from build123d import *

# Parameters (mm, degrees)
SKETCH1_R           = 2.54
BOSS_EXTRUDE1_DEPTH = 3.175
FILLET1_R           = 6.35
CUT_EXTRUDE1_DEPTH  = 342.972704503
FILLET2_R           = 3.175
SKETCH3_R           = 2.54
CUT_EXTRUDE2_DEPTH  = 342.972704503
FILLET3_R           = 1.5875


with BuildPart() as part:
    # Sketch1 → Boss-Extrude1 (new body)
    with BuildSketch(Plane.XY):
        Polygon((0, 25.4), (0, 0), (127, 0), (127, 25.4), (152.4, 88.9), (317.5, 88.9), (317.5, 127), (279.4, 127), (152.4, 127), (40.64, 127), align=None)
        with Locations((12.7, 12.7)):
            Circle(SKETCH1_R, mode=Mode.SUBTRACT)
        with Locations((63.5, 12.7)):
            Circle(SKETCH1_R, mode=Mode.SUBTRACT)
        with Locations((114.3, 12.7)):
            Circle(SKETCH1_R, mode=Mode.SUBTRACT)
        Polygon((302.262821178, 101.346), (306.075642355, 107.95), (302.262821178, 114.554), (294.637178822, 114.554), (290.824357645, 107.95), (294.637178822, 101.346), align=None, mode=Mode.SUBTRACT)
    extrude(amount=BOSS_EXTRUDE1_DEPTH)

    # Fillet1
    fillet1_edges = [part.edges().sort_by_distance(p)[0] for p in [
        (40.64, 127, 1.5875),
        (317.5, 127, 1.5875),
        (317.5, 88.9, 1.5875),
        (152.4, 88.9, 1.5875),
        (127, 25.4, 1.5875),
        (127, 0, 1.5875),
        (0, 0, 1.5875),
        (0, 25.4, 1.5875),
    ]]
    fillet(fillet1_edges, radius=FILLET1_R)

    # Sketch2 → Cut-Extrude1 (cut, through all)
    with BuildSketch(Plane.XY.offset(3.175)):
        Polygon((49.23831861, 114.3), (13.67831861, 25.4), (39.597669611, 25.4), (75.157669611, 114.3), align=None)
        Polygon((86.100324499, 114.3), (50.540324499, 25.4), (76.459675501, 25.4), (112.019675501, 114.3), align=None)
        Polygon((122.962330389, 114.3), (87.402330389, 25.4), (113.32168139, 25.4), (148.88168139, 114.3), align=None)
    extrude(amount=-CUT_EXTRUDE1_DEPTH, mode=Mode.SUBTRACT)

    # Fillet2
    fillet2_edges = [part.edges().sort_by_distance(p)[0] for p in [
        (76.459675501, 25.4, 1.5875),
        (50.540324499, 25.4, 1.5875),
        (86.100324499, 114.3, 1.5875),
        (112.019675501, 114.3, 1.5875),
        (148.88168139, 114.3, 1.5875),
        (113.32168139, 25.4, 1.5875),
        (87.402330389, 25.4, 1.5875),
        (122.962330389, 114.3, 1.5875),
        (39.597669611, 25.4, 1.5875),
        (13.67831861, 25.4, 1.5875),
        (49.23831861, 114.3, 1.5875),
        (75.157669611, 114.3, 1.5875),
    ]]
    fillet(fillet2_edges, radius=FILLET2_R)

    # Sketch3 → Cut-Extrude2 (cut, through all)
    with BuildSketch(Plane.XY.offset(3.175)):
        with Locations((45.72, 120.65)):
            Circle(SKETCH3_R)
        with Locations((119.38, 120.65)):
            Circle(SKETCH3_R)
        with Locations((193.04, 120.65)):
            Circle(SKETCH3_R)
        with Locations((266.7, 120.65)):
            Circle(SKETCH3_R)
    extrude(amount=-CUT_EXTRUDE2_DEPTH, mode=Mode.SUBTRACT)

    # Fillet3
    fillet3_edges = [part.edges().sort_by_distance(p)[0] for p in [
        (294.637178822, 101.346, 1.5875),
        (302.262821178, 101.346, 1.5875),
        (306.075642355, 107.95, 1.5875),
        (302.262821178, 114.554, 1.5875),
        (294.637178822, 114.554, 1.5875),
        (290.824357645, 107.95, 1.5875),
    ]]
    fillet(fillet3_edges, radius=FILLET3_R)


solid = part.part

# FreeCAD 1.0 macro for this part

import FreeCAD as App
import Part
import Sketcher

V = App.Vector
Q = App.Units.Quantity


def edges_at(feature, points):
    """Names of the edges that pass closest to the given points."""
    edges = feature.Shape.Edges
    near = lambda p: min(range(len(edges)), key=lambda i: edges[i].distToShape(Part.Vertex(*p))[0])
    return sorted({f"Edge{near(p) + 1}" for p in points})


def add_polygon(sketch, points):
    """Adds a closed chain of lines whose ends are joined by coincident constraints."""
    first, n = sketch.GeometryCount, len(points)
    for a, b in zip(points, points[1:] + points[:1]):
        sketch.addGeometry(Part.LineSegment(App.Vector(*a, 0), App.Vector(*b, 0)), False)
    for i in range(n):
        sketch.addConstraint(Sketcher.Constraint("Coincident", first + i, 2, first + (i + 1) % n, 1))

doc = App.newDocument("Part")
body = doc.addObject("PartDesign::Body", "Body")

# Sketch on XY plane
sketch1 = body.newObject("Sketcher::SketchObject", "Sketch")
sketch1.AttachmentSupport = (doc.getObject("XY_Plane"), [""])
sketch1.MapMode = "FlatFace"
add_polygon(sketch1, [(0, 25.4), (0, 0), (127, 0), (127, 25.4), (152.4, 88.9), (317.5, 88.9), (317.5, 127), (40.6, 127)])  # lines 0-7
sketch1.addGeometry(Part.Circle(V(12.7, 12.7, 0), V(0, 0, 1), 2.5), False)  # 8
sketch1.addGeometry(Part.Circle(V(63.5, 12.7, 0), V(0, 0, 1), 2.5), False)  # 9
sketch1.addGeometry(Part.Circle(V(114.3, 12.7, 0), V(0, 0, 1), 2.5), False)  # 10
add_polygon(sketch1, [(306.1, 108), (302.3, 101.3), (294.6, 101.3), (290.8, 108), (294.6, 114.6), (302.3, 114.6)])  # lines 11-16
sketch1.addConstraint([
    Sketcher.Constraint("Vertical", 0),
    Sketcher.Constraint("Horizontal", 1),
    Sketcher.Constraint("Vertical", 2),
    Sketcher.Constraint("Horizontal", 4),
    Sketcher.Constraint("Vertical", 5),
    Sketcher.Constraint("Horizontal", 6),
    Sketcher.Constraint("Horizontal", 12),
    Sketcher.Constraint("Horizontal", 15),
    Sketcher.Constraint("Coincident", 0, 2, -1, 1),
    Sketcher.Constraint("Equal", 8, 9),
    Sketcher.Constraint("Equal", 9, 10),
    Sketcher.Constraint("Parallel", 3, 7),
    Sketcher.Constraint("Parallel", 11, 14),
    Sketcher.Constraint("Parallel", 13, 16),
    Sketcher.Constraint("Horizontal", 8, 3, 9, 3),
    Sketcher.Constraint("Horizontal", 9, 3, 10, 3),
    Sketcher.Constraint("Horizontal", 2, 2, 7, 2),
    Sketcher.Constraint("Horizontal", 13, 2, 16, 2),
    Sketcher.Constraint("Vertical", 12, 2, 14, 2),
    Sketcher.Constraint("Vertical", 11, 2, 15, 2),
    Sketcher.Constraint("Diameter", 8, Q("0.2 in")),
    Sketcher.Constraint("DistanceX", 1, 1, 1, 2, Q("5 in")),
    Sketcher.Constraint("DistanceY", 0, 2, 0, 1, Q("1 in")),
    Sketcher.Constraint("DistanceX", 4, 1, 4, 2, Q("6.5 in")),
    Sketcher.Constraint("DistanceX", 6, 2, 6, 1, Q("10.9 in")),
    Sketcher.Constraint("DistanceY", 5, 1, 5, 2, Q("1.5 in")),
    Sketcher.Constraint("DistanceX", -1, 1, 3, 2, Q("6 in")),
    Sketcher.Constraint("Angle", 11, Q("-120 deg")),
    Sketcher.Constraint("DistanceX", 8, 3, 9, 3, Q("2 in")),
    Sketcher.Constraint("DistanceX", 9, 3, 10, 3, Q("2 in")),
    Sketcher.Constraint("DistanceY", 10, 3, 3, 2, Q("3 in")),
    Sketcher.Constraint("DistanceX", 10, 3, 4, 2, Q("8 in")),
    Sketcher.Constraint("DistanceY", -1, 1, 11, 2, Q("3.99 in")),
    Sketcher.Constraint("DistanceY", -1, 1, 13, 2, Q("4.25 in")),
    Sketcher.Constraint("DistanceX", 12, 2, 12, 1, 7.625642),
    Sketcher.Constraint("DistanceX", -1, 1, 11, 2, 302.262821),
])
pad1 = body.newObject("PartDesign::Pad", "Pad")
pad1.Profile = sketch1
pad1.Length = Q("0.125 in")
doc.recompute()

fillet = body.newObject("PartDesign::Fillet", "Fillet")
fillet.Base = (pad1, edges_at(pad1, [
    (40.64, 127, 1.587),
    (317.5, 127, 1.587),
    (317.5, 88.9, 1.587),
    (152.4, 88.9, 1.587),
    (127, 25.4, 1.587),
    (127, 0, 1.587),
    (0, 0, 1.587),
    (0, 25.4, 1.587),
]))
fillet.Radius = Q("0.25 in")

# Sketch on XY plane
sketch2 = body.newObject("Sketcher::SketchObject", "Sketch001")
sketch2.AttachmentSupport = (doc.getObject("XY_Plane"), [""])
sketch2.MapMode = "FlatFace"
sketch2.AttachmentOffset = App.Placement(V(0, 0, 0.125 * 25.4), App.Rotation())
add_polygon(sketch2, [(49, 114), (14, 25), (40, 25), (75, 114)])  # lines 0-3
add_polygon(sketch2, [(86, 114), (51, 25), (76, 25), (112, 114)])  # lines 4-7
add_polygon(sketch2, [(123, 114), (87, 25), (113, 25), (149, 114)])  # lines 8-11
sketch2.addConstraint([
    Sketcher.Constraint("Horizontal", 1),
    Sketcher.Constraint("Horizontal", 3),
    Sketcher.Constraint("Horizontal", 5),
    Sketcher.Constraint("Horizontal", 7),
    Sketcher.Constraint("Horizontal", 9),
    Sketcher.Constraint("Horizontal", 11),
    Sketcher.Constraint("Parallel", 0, 2),
    Sketcher.Constraint("Parallel", 2, 4),
    Sketcher.Constraint("Parallel", 4, 6),
    Sketcher.Constraint("Parallel", 6, 8),
    Sketcher.Constraint("Parallel", 8, 10),
    Sketcher.Constraint("Horizontal", 1, 2, 4, 2),
    Sketcher.Constraint("Horizontal", 3, 2, 6, 2),
    Sketcher.Constraint("Horizontal", 5, 2, 8, 2),
    Sketcher.Constraint("Horizontal", 7, 2, 10, 2),
    Sketcher.Constraint("Equal", 3, 5),
    Sketcher.Constraint("Equal", 7, 9),
    Sketcher.Constraint("DistanceY", -1, 1, 0, 2, Q("1 in")),
    Sketcher.Constraint("DistanceY", -1, 1, 2, 2, Q("4.5 in")),
    Sketcher.Constraint("DistanceX", 1, 2, 2, 2, Q("1.4 in")),
    Sketcher.Constraint("DistanceX", 1, 1, 1, 2, 25.919351),
    Sketcher.Constraint("DistanceX", -1, 1, 0, 2, 13.678319),
    Sketcher.Constraint("DistanceX", -1, 1, 8, 2, 87.40233),
    Sketcher.Constraint("DistanceX", -1, 1, 4, 2, 50.540324),
])
pocket1 = body.newObject("PartDesign::Pocket", "Pocket")
pocket1.Profile = sketch2
pocket1.Type = "ThroughAll"
doc.recompute()

fillet2 = body.newObject("PartDesign::Fillet", "Fillet001")
fillet2.Base = (pocket1, edges_at(pocket1, [
    (76.46, 25.4, 1.587),
    (50.54, 25.4, 1.587),
    (86.1, 114.3, 1.587),
    (112.02, 114.3, 1.587),
    (148.882, 114.3, 1.587),
    (113.322, 25.4, 1.587),
    (87.402, 25.4, 1.587),
    (122.962, 114.3, 1.587),
    (39.598, 25.4, 1.587),
    (13.678, 25.4, 1.587),
    (49.238, 114.3, 1.587),
    (75.158, 114.3, 1.587),
]))
fillet2.Radius = Q("0.125 in")

# Sketch on XY plane
sketch3 = body.newObject("Sketcher::SketchObject", "Sketch002")
sketch3.AttachmentSupport = (doc.getObject("XY_Plane"), [""])
sketch3.MapMode = "FlatFace"
sketch3.AttachmentOffset = App.Placement(V(0, 0, 0.125 * 25.4), App.Rotation())
sketch3.addGeometry([
    Part.Circle(V(45.7, 120.7, 0), V(0, 0, 1), 2.5),
    Part.Circle(V(119.4, 120.7, 0), V(0, 0, 1), 2.5),
    Part.Circle(V(193, 120.7, 0), V(0, 0, 1), 2.5),
    Part.Circle(V(266.7, 120.7, 0), V(0, 0, 1), 2.5),
], False)
sketch3.addConstraint([
    Sketcher.Constraint("Equal", 0, 1),
    Sketcher.Constraint("Equal", 1, 2),
    Sketcher.Constraint("Equal", 2, 3),
    Sketcher.Constraint("Horizontal", 0, 3, 1, 3),
    Sketcher.Constraint("Horizontal", 1, 3, 2, 3),
    Sketcher.Constraint("Horizontal", 2, 3, 3, 3),
    Sketcher.Constraint("Diameter", 0, Q("0.2 in")),
    Sketcher.Constraint("DistanceX", -1, 1, 0, 3, Q("1.8 in")),
    Sketcher.Constraint("DistanceX", -1, 1, 1, 3, Q("4.7 in")),
    Sketcher.Constraint("DistanceX", -1, 1, 2, 3, Q("7.6 in")),
    Sketcher.Constraint("DistanceX", -1, 1, 3, 3, Q("10.5 in")),
    Sketcher.Constraint("DistanceY", -1, 1, 0, 3, Q("4.75 in")),
])
pocket2 = body.newObject("PartDesign::Pocket", "Pocket001")
pocket2.Profile = sketch3
pocket2.Type = "ThroughAll"
doc.recompute()

fillet3 = body.newObject("PartDesign::Fillet", "Fillet002")
fillet3.Base = (pocket2, edges_at(pocket2, [
    (294.637, 101.346, 1.587),
    (302.263, 101.346, 1.587),
    (306.076, 107.95, 1.587),
    (302.263, 114.554, 1.587),
    (294.637, 114.554, 1.587),
    (290.824, 107.95, 1.587),
]))
fillet3.Radius = Q("0.0625 in")

doc.recompute()
